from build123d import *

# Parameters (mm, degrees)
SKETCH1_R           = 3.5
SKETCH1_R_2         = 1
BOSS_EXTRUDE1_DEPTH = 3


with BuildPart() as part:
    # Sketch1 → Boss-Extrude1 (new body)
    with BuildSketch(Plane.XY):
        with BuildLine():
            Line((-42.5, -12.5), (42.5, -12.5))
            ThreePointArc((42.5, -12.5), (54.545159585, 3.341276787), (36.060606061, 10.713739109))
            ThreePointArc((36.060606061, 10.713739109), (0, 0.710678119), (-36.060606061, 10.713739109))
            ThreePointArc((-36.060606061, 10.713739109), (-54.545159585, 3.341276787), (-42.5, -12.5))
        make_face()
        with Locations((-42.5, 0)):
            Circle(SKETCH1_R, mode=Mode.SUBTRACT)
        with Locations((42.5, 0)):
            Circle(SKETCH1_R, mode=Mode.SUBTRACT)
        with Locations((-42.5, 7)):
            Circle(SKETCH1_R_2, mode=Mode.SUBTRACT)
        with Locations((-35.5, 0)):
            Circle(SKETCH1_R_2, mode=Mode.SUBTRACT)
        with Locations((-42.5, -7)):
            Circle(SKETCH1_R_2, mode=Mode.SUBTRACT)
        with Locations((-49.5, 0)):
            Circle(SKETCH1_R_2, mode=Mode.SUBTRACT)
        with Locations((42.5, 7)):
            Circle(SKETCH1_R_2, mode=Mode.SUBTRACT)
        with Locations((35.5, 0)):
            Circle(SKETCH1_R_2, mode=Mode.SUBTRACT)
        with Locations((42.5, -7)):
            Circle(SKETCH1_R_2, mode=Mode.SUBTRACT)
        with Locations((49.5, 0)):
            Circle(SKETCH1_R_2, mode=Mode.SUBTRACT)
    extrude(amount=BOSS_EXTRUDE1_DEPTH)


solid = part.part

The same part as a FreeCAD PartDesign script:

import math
import FreeCAD as App
import Part
import Sketcher

doc = App.newDocument("Part")
params = doc.addObject("Spreadsheet::Sheet", "Params")
for row, (alias, value) in enumerate([
    ("sketch1_diameter", "2 mm"),
    ("sketch1_diameter2", "7 mm"),
    ("sketch1_radius", "70 mm"),
    ("sketch1_radius2", "12.5 mm"),
    ("sketch1_width", "85 mm"),
    ("pad1_length", "3 mm"),
], start=1):
    params.set(f"A{row}", alias)
    params.set(f"B{row}", "=" + value)
    params.setAlias(f"B{row}", alias)

body = doc.addObject("PartDesign::Body", "Body")

sketch1 = body.newObject("Sketcher::SketchObject", "Sketch")
sketch1.AttachmentSupport = (doc.getObject("XY_Plane"), [""])
sketch1.MapMode = "FlatFace"
sketch1.addGeometry([
    Part.LineSegment(App.Vector(-42.5, -12.5, 0), App.Vector(42.5, -12.5, 0)),
    Part.ArcOfCircle(Part.Circle(App.Vector(42.5, 0, 0), App.Vector(0, 0, 1), 12.5), math.radians(-90), math.radians(121)),
    Part.ArcOfCircle(Part.Circle(App.Vector(0, 70.7, 0), App.Vector(0, 0, 1), 70), math.radians(-121), math.radians(-59)),
    Part.ArcOfCircle(Part.Circle(App.Vector(-42.5, 0, 0), App.Vector(0, 0, 1), 12.5), math.radians(59), math.radians(270)),
    Part.Circle(App.Vector(-42.5, -7, 0), App.Vector(0, 0, 1), 1),
    Part.Circle(App.Vector(42.5, -7, 0), App.Vector(0, 0, 1), 1),
    Part.Circle(App.Vector(-49.5, 0, 0), App.Vector(0, 0, 1), 1),
    Part.Circle(App.Vector(-42.5, 0, 0), App.Vector(0, 0, 1), 3.5),
    Part.Circle(App.Vector(-35.5, 0, 0), App.Vector(0, 0, 1), 1),
    Part.Circle(App.Vector(-42.5, 7, 0), App.Vector(0, 0, 1), 1),
    Part.Circle(App.Vector(35.5, 0, 0), App.Vector(0, 0, 1), 1),
    Part.Circle(App.Vector(42.5, 0, 0), App.Vector(0, 0, 1), 3.5),
    Part.Circle(App.Vector(49.5, 0, 0), App.Vector(0, 0, 1), 1),
    Part.Circle(App.Vector(42.5, 7, 0), App.Vector(0, 0, 1), 1),
], False)
sketch1.addConstraint([
    Sketcher.Constraint("Tangent", 0, 2, 1, 1),
    Sketcher.Constraint("Tangent", 1, 2, 2, 2),
    Sketcher.Constraint("Tangent", 2, 1, 3, 1),
    Sketcher.Constraint("Tangent", 3, 2, 0, 1),
    Sketcher.Constraint("Horizontal", 0),
    Sketcher.Constraint("Coincident", 7, 3, 3, 3),
    Sketcher.Constraint("Coincident", 11, 3, 1, 3),
    Sketcher.Constraint("Equal", 1, 3),
    Sketcher.Constraint("Equal", 4, 5),
    Sketcher.Constraint("Equal", 5, 6),
    Sketcher.Constraint("Equal", 6, 8),
    Sketcher.Constraint("Equal", 8, 9),
    Sketcher.Constraint("Equal", 9, 10),
    Sketcher.Constraint("Equal", 7, 11),
    Sketcher.Constraint("Equal", 10, 12),
    Sketcher.Constraint("Equal", 12, 13),
    Sketcher.Constraint("Symmetric", 1, 3, 3, 3, -1, 1),
    Sketcher.Constraint("Symmetric", 5, 3, 9, 3, -1, 1),
    Sketcher.Constraint("Symmetric", 8, 3, 10, 3, -1, 1),
    Sketcher.Constraint("Symmetric", 6, 3, 12, 3, -1, 1),
    Sketcher.Constraint("Symmetric", 4, 3, 13, 3, -1, 1),
    Sketcher.Constraint("Symmetric", 4, 3, 5, 3, -2),
    Sketcher.Constraint("PointOnObject", 6, 3, -1),
    Sketcher.Constraint("PointOnObject", 8, 3, -1),
    Sketcher.Constraint("Vertical", 3, 3, 4, 3),
    Sketcher.Constraint("Diameter", 4, 2.0),
    Sketcher.Constraint("Diameter", 7, 7.0),
    Sketcher.Constraint("Radius", 2, 70.0),
    Sketcher.Constraint("Radius", 1, 12.5),
    Sketcher.Constraint("DistanceX", 0, 1, 0, 2, 85.0),
    Sketcher.Constraint("DistanceY", 4, 3, -1, 1, 7.0),
    Sketcher.Constraint("DistanceX", 6, 3, 3, 3, 7.0),
    Sketcher.Constraint("DistanceX", 3, 3, 8, 3, 7.0),
])
sketch1.setExpression("Constraints[25]", "Params.sketch1_diameter")
sketch1.setExpression("Constraints[26]", "Params.sketch1_diameter2")
sketch1.setExpression("Constraints[27]", "Params.sketch1_radius")
sketch1.setExpression("Constraints[28]", "Params.sketch1_radius2")
sketch1.setExpression("Constraints[29]", "Params.sketch1_width")
pad1 = body.newObject("PartDesign::Pad", "Pad")
pad1.Profile = sketch1
pad1.setExpression("Length", "Params.pad1_length")

doc.recompute()
